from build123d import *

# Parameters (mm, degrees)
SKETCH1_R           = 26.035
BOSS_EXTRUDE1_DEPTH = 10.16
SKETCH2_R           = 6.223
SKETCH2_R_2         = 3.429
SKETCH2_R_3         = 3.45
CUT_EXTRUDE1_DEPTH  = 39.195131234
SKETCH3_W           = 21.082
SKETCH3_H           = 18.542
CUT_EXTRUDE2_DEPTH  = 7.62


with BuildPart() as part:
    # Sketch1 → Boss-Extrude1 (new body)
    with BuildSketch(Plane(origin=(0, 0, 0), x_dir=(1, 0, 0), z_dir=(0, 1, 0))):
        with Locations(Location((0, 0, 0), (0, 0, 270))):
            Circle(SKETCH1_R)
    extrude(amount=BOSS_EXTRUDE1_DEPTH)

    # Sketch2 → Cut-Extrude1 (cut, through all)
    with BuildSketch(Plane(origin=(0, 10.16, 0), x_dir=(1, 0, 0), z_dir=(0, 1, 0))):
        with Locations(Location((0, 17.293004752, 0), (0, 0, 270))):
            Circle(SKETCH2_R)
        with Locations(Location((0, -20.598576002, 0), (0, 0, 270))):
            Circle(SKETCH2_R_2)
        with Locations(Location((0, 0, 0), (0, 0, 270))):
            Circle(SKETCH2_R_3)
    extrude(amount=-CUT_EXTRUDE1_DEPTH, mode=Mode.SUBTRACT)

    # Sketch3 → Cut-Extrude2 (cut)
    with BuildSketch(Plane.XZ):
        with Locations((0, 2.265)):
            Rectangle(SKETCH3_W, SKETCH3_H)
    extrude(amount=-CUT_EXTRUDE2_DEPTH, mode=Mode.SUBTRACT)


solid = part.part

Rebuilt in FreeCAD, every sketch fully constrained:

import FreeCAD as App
import Part
import Sketcher
Q = App.Units.Quantity


def add_polygon(sketch, points):
    """Adds a closed chain of lines whose ends are joined by coincident constraints."""
    first, n = sketch.GeometryCount, len(points)
    for a, b in zip(points, points[1:] + points[:1]):
        sketch.addGeometry(Part.LineSegment(App.Vector(*a, 0), App.Vector(*b, 0)), False)
    for i in range(n):
        sketch.addConstraint(Sketcher.Constraint("Coincident", first + i, 2, first + (i + 1) % n, 1))

doc = App.newDocument("Part")
params = doc.addObject("Spreadsheet::Sheet", "Params")
for row, (alias, value) in enumerate([
    ("sketch1_diameter", "2.05 in"),
    ("pad1_length", "0.4 in"),
    ("sketch2_diameter", "0.49 in"),
    ("sketch2_diameter2", "0.27 in"),
    ("sketch3_width", "0.83 in"),
    ("sketch3_height", "0.73 in"),
    ("pocket2_length", "0.3 in"),
], start=1):
    params.set(f"A{row}", alias)
    params.set(f"B{row}", "=" + value)
    params.setAlias(f"B{row}", alias)

body = doc.addObject("PartDesign::Body", "Body")

# Sketch on XZ plane
sketch1 = body.newObject("Sketcher::SketchObject", "Sketch")
sketch1.AttachmentSupport = (doc.getObject("XZ_Plane"), [""])
sketch1.MapMode = "FlatFace"
sketch1.addGeometry(Part.Circle(App.Vector(0, 0, 0), App.Vector(0, 0, 1), 26), False)
sketch1.addConstraint([
    Sketcher.Constraint("Coincident", 0, 3, -1, 1),
    Sketcher.Constraint("Diameter", 0, Q("2.05 in")),
])
sketch1.setExpression("Constraints[1]", "Params.sketch1_diameter")
pad1 = body.newObject("PartDesign::Pad", "Pad")
pad1.Profile = sketch1
pad1.setExpression("Length", "Params.pad1_length")
pad1.Reversed = True

# Sketch on XZ plane
sketch2 = body.newObject("Sketcher::SketchObject", "Sketch001")
sketch2.AttachmentSupport = (doc.getObject("XZ_Plane"), [""])
sketch2.MapMode = "FlatFace"
sketch2.AttachmentOffset = App.Placement(App.Vector(0, 0, -0.4 * 25.4), App.Rotation())
sketch2.addGeometry([
    Part.Circle(App.Vector(0, -17.3, 0), App.Vector(0, 0, 1), 6.2),
    Part.Circle(App.Vector(0, 20.6, 0), App.Vector(0, 0, 1), 3.4),
    Part.Circle(App.Vector(0, 0, 0), App.Vector(0, 0, 1), 3.5),
], False)
sketch2.addConstraint([
    Sketcher.Constraint("Coincident", 2, 3, -1, 1),
    Sketcher.Constraint("PointOnObject", 0, 3, -2),
    Sketcher.Constraint("PointOnObject", 1, 3, -2),
    Sketcher.Constraint("Diameter", 0, Q("0.49 in")),
    Sketcher.Constraint("Diameter", 1, Q("0.27 in")),
    Sketcher.Constraint("Diameter", 2, Q("6.9 mm")),
    Sketcher.Constraint("DistanceY", 0, 3, 1, 3, Q("37.891581 mm")),
    Sketcher.Constraint("DistanceY", 0, 3, -1, 1, Q("17.293005 mm")),
])
sketch2.setExpression("Constraints[3]", "Params.sketch2_diameter")
sketch2.setExpression("Constraints[4]", "Params.sketch2_diameter2")
pocket1 = body.newObject("PartDesign::Pocket", "Pocket")
pocket1.Profile = sketch2
pocket1.Type = "ThroughAll"
pocket1.Reversed = True

# Sketch on XZ plane
sketch3 = body.newObject("Sketcher::SketchObject", "Sketch002")
sketch3.AttachmentSupport = (doc.getObject("XZ_Plane"), [""])
sketch3.MapMode = "FlatFace"
add_polygon(sketch3, [(-11, 12), (-11, -7), (11, -7), (11, 12)])  # lines 0-3
sketch3.addConstraint([
    Sketcher.Constraint("Vertical", 0),
    Sketcher.Constraint("Horizontal", 1),
    Sketcher.Constraint("Vertical", 2),
    Sketcher.Constraint("Horizontal", 3),
    Sketcher.Constraint("DistanceX", 1, 1, 1, 2, Q("0.83 in")),
    Sketcher.Constraint("DistanceY", 0, 2, 0, 1, Q("0.73 in")),
    Sketcher.Constraint("DistanceX", 0, 2, -1, 1, Q("0.415 in")),
    Sketcher.Constraint("DistanceY", 0, 2, -1, 1, Q("7.006 mm")),
])
sketch3.setExpression("Constraints[8]", "Params.sketch3_width")
sketch3.setExpression("Constraints[9]", "Params.sketch3_height")
pocket2 = body.newObject("PartDesign::Pocket", "Pocket001")
pocket2.Profile = sketch3
pocket2.setExpression("Length", "Params.pocket2_length")

doc.recompute()
